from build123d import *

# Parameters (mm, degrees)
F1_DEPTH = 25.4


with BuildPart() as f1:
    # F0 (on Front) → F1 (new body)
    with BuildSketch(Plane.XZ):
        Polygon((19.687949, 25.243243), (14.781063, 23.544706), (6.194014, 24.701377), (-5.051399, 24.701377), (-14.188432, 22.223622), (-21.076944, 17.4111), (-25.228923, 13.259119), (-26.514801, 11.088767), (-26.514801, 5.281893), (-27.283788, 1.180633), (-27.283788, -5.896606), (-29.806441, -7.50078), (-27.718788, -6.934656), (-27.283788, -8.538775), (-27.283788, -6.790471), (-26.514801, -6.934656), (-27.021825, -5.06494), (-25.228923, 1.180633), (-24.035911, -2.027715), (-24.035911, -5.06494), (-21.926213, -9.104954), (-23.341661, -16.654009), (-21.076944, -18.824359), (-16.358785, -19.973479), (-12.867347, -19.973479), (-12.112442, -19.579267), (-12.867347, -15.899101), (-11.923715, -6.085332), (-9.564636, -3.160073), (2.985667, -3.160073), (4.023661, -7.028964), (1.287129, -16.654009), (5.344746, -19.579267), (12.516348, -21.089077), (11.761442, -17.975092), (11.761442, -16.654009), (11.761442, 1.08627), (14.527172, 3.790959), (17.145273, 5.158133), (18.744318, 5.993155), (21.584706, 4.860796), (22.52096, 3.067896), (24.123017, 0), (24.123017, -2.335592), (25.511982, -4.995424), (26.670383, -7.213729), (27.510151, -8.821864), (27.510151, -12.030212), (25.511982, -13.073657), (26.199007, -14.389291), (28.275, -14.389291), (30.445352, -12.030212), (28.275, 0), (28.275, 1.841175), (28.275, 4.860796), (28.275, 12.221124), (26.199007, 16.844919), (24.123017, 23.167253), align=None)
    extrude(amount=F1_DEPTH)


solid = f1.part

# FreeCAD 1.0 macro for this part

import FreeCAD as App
import Part
import Sketcher
from FreeCAD import Vector
Q = App.Units.Quantity

doc = App.newDocument("Part")
body = doc.addObject("PartDesign::Body", "Body")

# Sketch on XZ plane
sketch1 = doc.addObject("Sketcher::SketchObject", "Sketch")
body.addObject(sketch1)
sketch1.AttachmentSupport = (doc.XZ_Plane, [""])
sketch1.MapMode = "FlatFace"
sketch1.addGeometry(Part.LineSegment(Vector(19.687949, 25.243243, 0), Vector(14.781063, 23.544706, 0)), False)
sketch1.addGeometry(Part.LineSegment(Vector(14.781063, 23.544706, 0), Vector(6.194014, 24.701377, 0)), False)
sketch1.addGeometry(Part.LineSegment(Vector(6.194014, 24.701377, 0), Vector(-5.051399, 24.701377, 0)), False)
sketch1.addGeometry(Part.LineSegment(Vector(-5.051399, 24.701377, 0), Vector(-14.188432, 22.223622, 0)), False)
sketch1.addGeometry(Part.LineSegment(Vector(-14.188432, 22.223622, 0), Vector(-21.076944, 17.4111, 0)), False)
sketch1.addGeometry(Part.LineSegment(Vector(-21.076944, 17.4111, 0), Vector(-25.228923, 13.259119, 0)), False)
sketch1.addGeometry(Part.LineSegment(Vector(-25.228923, 13.259119, 0), Vector(-26.514801, 11.088767, 0)), False)
sketch1.addGeometry(Part.LineSegment(Vector(-26.514801, 11.088767, 0), Vector(-26.514801, 5.281893, 0)), False)
sketch1.addGeometry(Part.LineSegment(Vector(-26.514801, 5.281893, 0), Vector(-27.283788, 1.180633, 0)), False)
sketch1.addGeometry(Part.LineSegment(Vector(-27.283788, 1.180633, 0), Vector(-27.283788, -5.896606, 0)), False)
sketch1.addGeometry(Part.LineSegment(Vector(-27.283788, -5.896606, 0), Vector(-29.806441, -7.50078, 0)), False)
sketch1.addGeometry(Part.LineSegment(Vector(-29.806441, -7.50078, 0), Vector(-27.718788, -6.934656, 0)), False)
sketch1.addGeometry(Part.LineSegment(Vector(-27.718788, -6.934656, 0), Vector(-27.283788, -8.538775, 0)), False)
sketch1.addGeometry(Part.LineSegment(Vector(-27.283788, -8.538775, 0), Vector(-27.283788, -6.790471, 0)), False)
sketch1.addGeometry(Part.LineSegment(Vector(-27.283788, -6.790471, 0), Vector(-26.514801, -6.934656, 0)), False)
sketch1.addGeometry(Part.LineSegment(Vector(-26.514801, -6.934656, 0), Vector(-27.021825, -5.06494, 0)), False)
sketch1.addGeometry(Part.LineSegment(Vector(-27.021825, -5.06494, 0), Vector(-25.228923, 1.180633, 0)), False)
sketch1.addGeometry(Part.LineSegment(Vector(-25.228923, 1.180633, 0), Vector(-24.035911, -2.027715, 0)), False)
sketch1.addGeometry(Part.LineSegment(Vector(-24.035911, -2.027715, 0), Vector(-24.035911, -5.06494, 0)), False)
sketch1.addGeometry(Part.LineSegment(Vector(-24.035911, -5.06494, 0), Vector(-21.926213, -9.104954, 0)), False)
sketch1.addGeometry(Part.LineSegment(Vector(-21.926213, -9.104954, 0), Vector(-23.341661, -16.654009, 0)), False)
sketch1.addGeometry(Part.LineSegment(Vector(-23.341661, -16.654009, 0), Vector(-21.076944, -18.824359, 0)), False)
sketch1.addGeometry(Part.LineSegment(Vector(-21.076944, -18.824359, 0), Vector(-16.358785, -19.973479, 0)), False)
sketch1.addGeometry(Part.LineSegment(Vector(-16.358785, -19.973479, 0), Vector(-12.867347, -19.973479, 0)), False)
sketch1.addGeometry(Part.LineSegment(Vector(-12.867347, -19.973479, 0), Vector(-12.112442, -19.579267, 0)), False)
sketch1.addGeometry(Part.LineSegment(Vector(-12.112442, -19.579267, 0), Vector(-12.867347, -15.899101, 0)), False)
sketch1.addGeometry(Part.LineSegment(Vector(-12.867347, -15.899101, 0), Vector(-11.923715, -6.085332, 0)), False)
sketch1.addGeometry(Part.LineSegment(Vector(-11.923715, -6.085332, 0), Vector(-9.564636, -3.160073, 0)), False)
sketch1.addGeometry(Part.LineSegment(Vector(-9.564636, -3.160073, 0), Vector(2.985667, -3.160073, 0)), False)
sketch1.addGeometry(Part.LineSegment(Vector(2.985667, -3.160073, 0), Vector(4.023661, -7.028964, 0)), False)
sketch1.addGeometry(Part.LineSegment(Vector(4.023661, -7.028964, 0), Vector(1.287129, -16.654009, 0)), False)
sketch1.addGeometry(Part.LineSegment(Vector(1.287129, -16.654009, 0), Vector(5.344746, -19.579267, 0)), False)
sketch1.addGeometry(Part.LineSegment(Vector(5.344746, -19.579267, 0), Vector(12.516348, -21.089077, 0)), False)
sketch1.addGeometry(Part.LineSegment(Vector(12.516348, -21.089077, 0), Vector(11.761442, -17.975092, 0)), False)
sketch1.addGeometry(Part.LineSegment(Vector(11.761442, -17.975092, 0), Vector(11.761442, 1.08627, 0)), False)
sketch1.addGeometry(Part.LineSegment(Vector(11.761442, 1.08627, 0), Vector(14.527172, 3.790959, 0)), False)
sketch1.addGeometry(Part.LineSegment(Vector(14.527172, 3.790959, 0), Vector(17.145273, 5.158133, 0)), False)
sketch1.addGeometry(Part.LineSegment(Vector(17.145273, 5.158133, 0), Vector(18.744318, 5.993155, 0)), False)
sketch1.addGeometry(Part.LineSegment(Vector(18.744318, 5.993155, 0), Vector(21.584706, 4.860796, 0)), False)
sketch1.addGeometry(Part.LineSegment(Vector(21.584706, 4.860796, 0), Vector(22.52096, 3.067896, 0)), False)
sketch1.addGeometry(Part.LineSegment(Vector(22.52096, 3.067896, 0), Vector(24.123017, 0, 0)), False)
sketch1.addGeometry(Part.LineSegment(Vector(24.123017, 0, 0), Vector(24.123017, -2.335592, 0)), False)
sketch1.addGeometry(Part.LineSegment(Vector(24.123017, -2.335592, 0), Vector(25.511982, -4.995424, 0)), False)
sketch1.addGeometry(Part.LineSegment(Vector(25.511982, -4.995424, 0), Vector(26.670383, -7.213729, 0)), False)
sketch1.addGeometry(Part.LineSegment(Vector(26.670383, -7.213729, 0), Vector(27.510151, -8.821864, 0)), False)
sketch1.addGeometry(Part.LineSegment(Vector(27.510151, -8.821864, 0), Vector(27.510151, -12.030212, 0)), False)
sketch1.addGeometry(Part.LineSegment(Vector(27.510151, -12.030212, 0), Vector(25.511982, -13.073657, 0)), False)
sketch1.addGeometry(Part.LineSegment(Vector(25.511982, -13.073657, 0), Vector(26.199007, -14.389291, 0)), False)
sketch1.addGeometry(Part.LineSegment(Vector(26.199007, -14.389291, 0), Vector(28.275, -14.389291, 0)), False)
sketch1.addGeometry(Part.LineSegment(Vector(28.275, -14.389291, 0), Vector(30.445352, -12.030212, 0)), False)
sketch1.addGeometry(Part.LineSegment(Vector(30.445352, -12.030212, 0), Vector(28.275, 0, 0)), False)
sketch1.addGeometry(Part.LineSegment(Vector(28.275, 0, 0), Vector(28.275, 12.221124, 0)), False)
sketch1.addGeometry(Part.LineSegment(Vector(28.275, 12.221124, 0), Vector(26.199007, 16.844919, 0)), False)
sketch1.addGeometry(Part.LineSegment(Vector(26.199007, 16.844919, 0), Vector(24.123017, 23.167253, 0)), False)
sketch1.addGeometry(Part.LineSegment(Vector(24.123017, 23.167253, 0), Vector(19.687949, 25.243243, 0)), False)
sketch1.addConstraint(Sketcher.Constraint("Coincident", 0, 2, 1, 1))
sketch1.addConstraint(Sketcher.Constraint("Coincident", 1, 2, 2, 1))
sketch1.addConstraint(Sketcher.Constraint("Coincident", 2, 2, 3, 1))
sketch1.addConstraint(Sketcher.Constraint("Coincident", 3, 2, 4, 1))
sketch1.addConstraint(Sketcher.Constraint("Coincident", 4, 2, 5, 1))
sketch1.addConstraint(Sketcher.Constraint("Coincident", 5, 2, 6, 1))
sketch1.addConstraint(Sketcher.Constraint("Coincident", 6, 2, 7, 1))
sketch1.addConstraint(Sketcher.Constraint("Coincident", 7, 2, 8, 1))
sketch1.addConstraint(Sketcher.Constraint("Coincident", 8, 2, 9, 1))
sketch1.addConstraint(Sketcher.Constraint("Coincident", 9, 2, 10, 1))
sketch1.addConstraint(Sketcher.Constraint("Coincident", 10, 2, 11, 1))
sketch1.addConstraint(Sketcher.Constraint("Coincident", 11, 2, 12, 1))
sketch1.addConstraint(Sketcher.Constraint("Coincident", 12, 2, 13, 1))
sketch1.addConstraint(Sketcher.Constraint("Coincident", 13, 2, 14, 1))
sketch1.addConstraint(Sketcher.Constraint("Coincident", 14, 2, 15, 1))
sketch1.addConstraint(Sketcher.Constraint("Coincident", 15, 2, 16, 1))
sketch1.addConstraint(Sketcher.Constraint("Coincident", 16, 2, 17, 1))
sketch1.addConstraint(Sketcher.Constraint("Coincident", 17, 2, 18, 1))
sketch1.addConstraint(Sketcher.Constraint("Coincident", 18, 2, 19, 1))
sketch1.addConstraint(Sketcher.Constraint("Coincident", 19, 2, 20, 1))
sketch1.addConstraint(Sketcher.Constraint("Coincident", 20, 2, 21, 1))
sketch1.addConstraint(Sketcher.Constraint("Coincident", 21, 2, 22, 1))
sketch1.addConstraint(Sketcher.Constraint("Coincident", 22, 2, 23, 1))
sketch1.addConstraint(Sketcher.Constraint("Coincident", 23, 2, 24, 1))
sketch1.addConstraint(Sketcher.Constraint("Coincident", 24, 2, 25, 1))
sketch1.addConstraint(Sketcher.Constraint("Coincident", 25, 2, 26, 1))
sketch1.addConstraint(Sketcher.Constraint("Coincident", 26, 2, 27, 1))
sketch1.addConstraint(Sketcher.Constraint("Coincident", 27, 2, 28, 1))
sketch1.addConstraint(Sketcher.Constraint("Coincident", 28, 2, 29, 1))
sketch1.addConstraint(Sketcher.Constraint("Coincident", 29, 2, 30, 1))
sketch1.addConstraint(Sketcher.Constraint("Coincident", 30, 2, 31, 1))
sketch1.addConstraint(Sketcher.Constraint("Coincident", 31, 2, 32, 1))
sketch1.addConstraint(Sketcher.Constraint("Coincident", 32, 2, 33, 1))
sketch1.addConstraint(Sketcher.Constraint("Coincident", 33, 2, 34, 1))
sketch1.addConstraint(Sketcher.Constraint("Coincident", 34, 2, 35, 1))
sketch1.addConstraint(Sketcher.Constraint("Coincident", 35, 2, 36, 1))
sketch1.addConstraint(Sketcher.Constraint("Coincident", 36, 2, 37, 1))
sketch1.addConstraint(Sketcher.Constraint("Coincident", 37, 2, 38, 1))
sketch1.addConstraint(Sketcher.Constraint("Coincident", 38, 2, 39, 1))
sketch1.addConstraint(Sketcher.Constraint("Coincident", 39, 2, 40, 1))
sketch1.addConstraint(Sketcher.Constraint("Coincident", 40, 2, 41, 1))
sketch1.addConstraint(Sketcher.Constraint("Coincident", 41, 2, 42, 1))
sketch1.addConstraint(Sketcher.Constraint("Coincident", 42, 2, 43, 1))
sketch1.addConstraint(Sketcher.Constraint("Coincident", 43, 2, 44, 1))
sketch1.addConstraint(Sketcher.Constraint("Coincident", 44, 2, 45, 1))
sketch1.addConstraint(Sketcher.Constraint("Coincident", 45, 2, 46, 1))
sketch1.addConstraint(Sketcher.Constraint("Coincident", 46, 2, 47, 1))
sketch1.addConstraint(Sketcher.Constraint("Coincident", 47, 2, 48, 1))
sketch1.addConstraint(Sketcher.Constraint("Coincident", 48, 2, 49, 1))
sketch1.addConstraint(Sketcher.Constraint("Coincident", 49, 2, 50, 1))
sketch1.addConstraint(Sketcher.Constraint("Coincident", 50, 2, 51, 1))
sketch1.addConstraint(Sketcher.Constraint("Coincident", 51, 2, 52, 1))
sketch1.addConstraint(Sketcher.Constraint("Coincident", 52, 2, 53, 1))
sketch1.addConstraint(Sketcher.Constraint("Coincident", 53, 2, 54, 1))
sketch1.addConstraint(Sketcher.Constraint("Coincident", 54, 2, 0, 1))
sketch1.addConstraint(Sketcher.Constraint("Horizontal", 2))
sketch1.addConstraint(Sketcher.Constraint("Vertical", 7))
sketch1.addConstraint(Sketcher.Constraint("Vertical", 9))
sketch1.addConstraint(Sketcher.Constraint("Vertical", 13))
sketch1.addConstraint(Sketcher.Constraint("Vertical", 18))
sketch1.addConstraint(Sketcher.Constraint("Horizontal", 23))
sketch1.addConstraint(Sketcher.Constraint("Horizontal", 28))
sketch1.addConstraint(Sketcher.Constraint("Vertical", 34))
sketch1.addConstraint(Sketcher.Constraint("Vertical", 41))
sketch1.addConstraint(Sketcher.Constraint("Vertical", 45))
sketch1.addConstraint(Sketcher.Constraint("Horizontal", 48))
sketch1.addConstraint(Sketcher.Constraint("Vertical", 51))
sketch1.addConstraint(Sketcher.Constraint("PointOnObject", 40, 2, -1))
sketch1.addConstraint(Sketcher.Constraint("PointOnObject", 50, 2, -1))
sketch1.addConstraint(Sketcher.Constraint("DistanceX", 8, 2, 5, 2, Q("0.0809002 in")))
sketch1.addConstraint(Sketcher.Constraint("DistanceX", 8, 2, 16, 2, Q("0.0809002 in")))
sketch1.addConstraint(Sketcher.Constraint("Distance", 1, Q("8.6646 mm")))
sketch1.addConstraint(Sketcher.Constraint("DistanceX", 23, 1, 23, 2, Q("3.491438 mm")))
sketch1.addConstraint(Sketcher.Constraint("DistanceY", 9, 2, 9, 1, Q("7.077239 mm")))
sketch1.addConstraint(Sketcher.Constraint("DistanceY", 34, 1, 34, 2, Q("19.061362 mm")))
sketch1.addConstraint(Sketcher.Constraint("DistanceY", 45, 2, 45, 1, Q("3.208348 mm")))
sketch1.addConstraint(Sketcher.Constraint("DistanceX", 2, 2, -1, 1, Q("5.051399 mm")))
sketch1.addConstraint(Sketcher.Constraint("DistanceY", -1, 1, 4, 2, Q("17.4111 mm")))
sketch1.addConstraint(Sketcher.Constraint("DistanceX", 6, 2, -1, 1, Q("26.514801 mm")))
sketch1.addConstraint(Sketcher.Constraint("DistanceX", 14, 2, -1, 1, Q("26.514801 mm")))
sketch1.addConstraint(Sketcher.Constraint("DistanceY", 25, 2, -1, 1, Q("15.899101 mm")))
sketch1.addConstraint(Sketcher.Constraint("DistanceX", -1, 1, 48, 2, Q("28.275 mm")))
sketch1.addConstraint(Sketcher.Constraint("DistanceX", -1, 1, 50, 2, Q("28.275 mm")))
sketch1.addConstraint(Sketcher.Constraint("DistanceY", 9, 2, 7, 2, Q("11.178499 mm")))
sketch1.addConstraint(Sketcher.Constraint("DistanceY", 10, 2, 5, 2, Q("20.759899 mm")))
sketch1.addConstraint(Sketcher.Constraint("DistanceX", 11, 2, 9, 2, Q("0.435 mm")))
sketch1.addConstraint(Sketcher.Constraint("DistanceX", 11, 2, 12, 2, Q("0.435 mm")))
sketch1.addConstraint(Sketcher.Constraint("DistanceX", 15, 2, 16, 2, Q("1.792902 mm")))
sketch1.addConstraint(Sketcher.Constraint("DistanceX", 19, 2, 26, 2, Q("10.002498 mm")))
sketch1.addConstraint(Sketcher.Constraint("DistanceX", 35, 2, 36, 2, Q("2.618101 mm")))
sketch1.addConstraint(Sketcher.Constraint("DistanceY", 39, 2, 38, 2, Q("1.7929 mm")))
sketch1.addConstraint(Sketcher.Constraint("DistanceX", 37, 2, 40, 2, Q("5.378699 mm")))
sketch1.addConstraint(Sketcher.Constraint("DistanceX", 42, 2, 43, 2, Q("1.158401 mm")))
sketch1.addConstraint(Sketcher.Constraint("DistanceX", 46, 2, 43, 2, Q("1.158401 mm")))
sketch1.addConstraint(Sketcher.Constraint("DistanceX", 45, 2, 49, 2, Q("2.935201 mm")))
sketch1.addConstraint(Sketcher.Constraint("DistanceX", 38, 2, 52, 2, Q("4.614301 mm")))
sketch1.addConstraint(Sketcher.Constraint("DistanceX", 37, 2, 53, 2, Q("5.378699 mm")))
sketch1.addConstraint(Sketcher.Constraint("DistanceY", 37, 2, 53, 2, Q("17.174098 mm")))
sketch1.addConstraint(Sketcher.Constraint("Distance", 0, Q("5.192548 mm")))
sketch1.addConstraint(Sketcher.Constraint("Distance", 3, Q("9.467029 mm")))
sketch1.addConstraint(Sketcher.Constraint("Distance", 6, Q("2.522679 mm")))
sketch1.addConstraint(Sketcher.Constraint("Distance", 8, Q("4.17273 mm")))
sketch1.addConstraint(Sketcher.Constraint("Distance", 11, Q("2.163051 mm")))
sketch1.addConstraint(Sketcher.Constraint("Distance", 16, Q("6.497821 mm")))
sketch1.addConstraint(Sketcher.Constraint("Distance", 19, Q("4.55769 mm")))
sketch1.addConstraint(Sketcher.Constraint("Distance", 22, Q("4.856079 mm")))
sketch1.addConstraint(Sketcher.Constraint("Distance", 26, Q("9.859032 mm")))
sketch1.addConstraint(Sketcher.Constraint("Distance", 31, Q("5.002139 mm")))
sketch1.addConstraint(Sketcher.Constraint("Distance", 35, Q("3.868411 mm")))
sketch1.addConstraint(Sketcher.Constraint("Distance", 37, Q("1.803942 mm")))
sketch1.addConstraint(Sketcher.Constraint("Distance", 46, Q("2.254209 mm")))
sketch1.addConstraint(Sketcher.Constraint("Distance", 49, Q("3.20557 mm")))
sketch1.addConstraint(Sketcher.Constraint("Distance", 50, Q("12.224419 mm")))
sketch1.addConstraint(Sketcher.Constraint("DistanceX", 2, 2, 2, 1, Q("11.245413 mm")))
sketch1.addConstraint(Sketcher.Constraint("DistanceX", 28, 1, 28, 2, Q("12.550303 mm")))
sketch1.addConstraint(Sketcher.Constraint("DistanceX", 48, 1, 48, 2, Q("2.075993 mm")))
sketch1.addConstraint(Sketcher.Constraint("DistanceY", 7, 2, 7, 1, Q("5.806874 mm")))
sketch1.addConstraint(Sketcher.Constraint("DistanceY", 13, 1, 13, 2, Q("1.748304 mm")))
sketch1.addConstraint(Sketcher.Constraint("DistanceY", 18, 2, 18, 1, Q("3.037225 mm")))
sketch1.addConstraint(Sketcher.Constraint("DistanceY", 41, 2, 41, 1, Q("2.335592 mm")))
sketch1.addConstraint(Sketcher.Constraint("DistanceY", 51, 1, 51, 2, Q("12.221124 mm")))
sketch1.addConstraint(Sketcher.Constraint("DistanceY", -1, 1, 3, 2, Q("22.223622 mm")))
sketch1.addConstraint(Sketcher.Constraint("DistanceY", -1, 1, 5, 2, Q("13.259119 mm")))
sketch1.addConstraint(Sketcher.Constraint("DistanceX", 10, 2, -1, 1, Q("29.806441 mm")))
sketch1.addConstraint(Sketcher.Constraint("DistanceY", 13, 2, -1, 1, Q("6.790471 mm")))
sketch1.addConstraint(Sketcher.Constraint("DistanceY", 15, 2, -1, 1, Q("5.06494 mm")))
sketch1.addConstraint(Sketcher.Constraint("DistanceX", 17, 2, -1, 1, Q("24.035911 mm")))
sketch1.addConstraint(Sketcher.Constraint("DistanceY", 18, 2, -1, 1, Q("5.06494 mm")))
sketch1.addConstraint(Sketcher.Constraint("DistanceX", 20, 2, -1, 1, Q("23.341661 mm")))
sketch1.addConstraint(Sketcher.Constraint("DistanceY", 20, 2, -1, 1, Q("16.654009 mm")))
sketch1.addConstraint(Sketcher.Constraint("DistanceY", 21, 2, -1, 1, Q("18.824359 mm")))
sketch1.addConstraint(Sketcher.Constraint("DistanceY", 22, 2, -1, 1, Q("19.973479 mm")))
sketch1.addConstraint(Sketcher.Constraint("DistanceX", -1, 1, 29, 2, Q("4.023661 mm")))
sketch1.addConstraint(Sketcher.Constraint("DistanceX", -1, 1, 30, 2, Q("1.287129 mm")))
sketch1.addConstraint(Sketcher.Constraint("DistanceY", 30, 2, -1, 1, Q("16.654009 mm")))
sketch1.addConstraint(Sketcher.Constraint("DistanceX", -1, 1, 32, 2, Q("12.516348 mm")))
sketch1.addConstraint(Sketcher.Constraint("DistanceY", 33, 2, -1, 1, Q("17.975092 mm")))
sketch1.addConstraint(Sketcher.Constraint("DistanceY", -1, 1, 35, 2, Q("3.790959 mm")))
sketch1.addConstraint(Sketcher.Constraint("DistanceX", -1, 1, 37, 2, Q("18.744318 mm")))
sketch1.addConstraint(Sketcher.Constraint("DistanceX", -1, 1, 39, 2, Q("22.52096 mm")))
sketch1.addConstraint(Sketcher.Constraint("DistanceX", -1, 1, 42, 2, Q("25.511982 mm")))
sketch1.addConstraint(Sketcher.Constraint("DistanceY", 43, 2, -1, 1, Q("7.213729 mm")))
sketch1.addConstraint(Sketcher.Constraint("DistanceX", -1, 1, 44, 2, Q("27.510151 mm")))
sketch1.addConstraint(Sketcher.Constraint("DistanceY", -1, 1, 52, 2, Q("16.844919 mm")))
sketch1.addConstraint(Sketcher.Constraint("DistanceX", -1, 1, 54, 2, Q("19.687949 mm")))
sketch1.addConstraint(Sketcher.Constraint("DistanceX", 1, 2, 0, 2, Q("8.587049 mm")))
sketch1.addConstraint(Sketcher.Constraint("DistanceX", 4, 2, 1, 2, Q("27.270958 mm")))
sketch1.addConstraint(Sketcher.Constraint("DistanceX", 5, 2, 3, 2, Q("11.040491 mm")))
sketch1.addConstraint(Sketcher.Constraint("DistanceY", 14, 2, 9, 2, Q("1.03805 mm")))
sketch1.addConstraint(Sketcher.Constraint("DistanceY", 19, 2, 12, 2, Q("0.566179 mm")))
sketch1.addConstraint(Sketcher.Constraint("DistanceX", 19, 2, 21, 2, Q("0.849269 mm")))
sketch1.addConstraint(Sketcher.Constraint("DistanceY", 23, 2, 24, 2, Q("0.394212 mm")))
sketch1.addConstraint(Sketcher.Constraint("DistanceX", 20, 2, 24, 2, Q("11.229219 mm")))
sketch1.addConstraint(Sketcher.Constraint("DistanceX", 22, 2, 25, 2, Q("3.491438 mm")))
sketch1.addConstraint(Sketcher.Constraint("DistanceX", 26, 2, 27, 2, Q("2.359079 mm")))
sketch1.addConstraint(Sketcher.Constraint("DistanceY", 26, 2, 27, 2, Q("2.925259 mm")))
sketch1.addConstraint(Sketcher.Constraint("DistanceY", 29, 2, 28, 2, Q("3.868891 mm")))
sketch1.addConstraint(Sketcher.Constraint("DistanceY", 31, 2, 30, 2, Q("2.925258 mm")))
sketch1.addConstraint(Sketcher.Constraint("DistanceY", 32, 2, 31, 2, Q("1.50981 mm")))
sketch1.addConstraint(Sketcher.Constraint("DistanceX", 29, 2, 33, 2, Q("7.737781 mm")))
sketch1.addConstraint(Sketcher.Constraint("DistanceY", 37, 2, 0, 2, Q("17.551551 mm")))
sketch1.addConstraint(Sketcher.Constraint("DistanceX", 37, 2, 38, 2, Q("2.840388 mm")))
sketch1.addConstraint(Sketcher.Constraint("DistanceY", 38, 2, 37, 2, Q("1.132359 mm")))
sketch1.addConstraint(Sketcher.Constraint("DistanceY", 42, 2, 41, 2, Q("2.659832 mm")))
sketch1.addConstraint(Sketcher.Constraint("DistanceY", 44, 2, 42, 2, Q("3.82644 mm")))
pad1 = doc.addObject("PartDesign::Pad", "Pad")
body.addObject(pad1)
pad1.Profile = sketch1
pad1.Length = Q("1 in")

doc.recompute()
